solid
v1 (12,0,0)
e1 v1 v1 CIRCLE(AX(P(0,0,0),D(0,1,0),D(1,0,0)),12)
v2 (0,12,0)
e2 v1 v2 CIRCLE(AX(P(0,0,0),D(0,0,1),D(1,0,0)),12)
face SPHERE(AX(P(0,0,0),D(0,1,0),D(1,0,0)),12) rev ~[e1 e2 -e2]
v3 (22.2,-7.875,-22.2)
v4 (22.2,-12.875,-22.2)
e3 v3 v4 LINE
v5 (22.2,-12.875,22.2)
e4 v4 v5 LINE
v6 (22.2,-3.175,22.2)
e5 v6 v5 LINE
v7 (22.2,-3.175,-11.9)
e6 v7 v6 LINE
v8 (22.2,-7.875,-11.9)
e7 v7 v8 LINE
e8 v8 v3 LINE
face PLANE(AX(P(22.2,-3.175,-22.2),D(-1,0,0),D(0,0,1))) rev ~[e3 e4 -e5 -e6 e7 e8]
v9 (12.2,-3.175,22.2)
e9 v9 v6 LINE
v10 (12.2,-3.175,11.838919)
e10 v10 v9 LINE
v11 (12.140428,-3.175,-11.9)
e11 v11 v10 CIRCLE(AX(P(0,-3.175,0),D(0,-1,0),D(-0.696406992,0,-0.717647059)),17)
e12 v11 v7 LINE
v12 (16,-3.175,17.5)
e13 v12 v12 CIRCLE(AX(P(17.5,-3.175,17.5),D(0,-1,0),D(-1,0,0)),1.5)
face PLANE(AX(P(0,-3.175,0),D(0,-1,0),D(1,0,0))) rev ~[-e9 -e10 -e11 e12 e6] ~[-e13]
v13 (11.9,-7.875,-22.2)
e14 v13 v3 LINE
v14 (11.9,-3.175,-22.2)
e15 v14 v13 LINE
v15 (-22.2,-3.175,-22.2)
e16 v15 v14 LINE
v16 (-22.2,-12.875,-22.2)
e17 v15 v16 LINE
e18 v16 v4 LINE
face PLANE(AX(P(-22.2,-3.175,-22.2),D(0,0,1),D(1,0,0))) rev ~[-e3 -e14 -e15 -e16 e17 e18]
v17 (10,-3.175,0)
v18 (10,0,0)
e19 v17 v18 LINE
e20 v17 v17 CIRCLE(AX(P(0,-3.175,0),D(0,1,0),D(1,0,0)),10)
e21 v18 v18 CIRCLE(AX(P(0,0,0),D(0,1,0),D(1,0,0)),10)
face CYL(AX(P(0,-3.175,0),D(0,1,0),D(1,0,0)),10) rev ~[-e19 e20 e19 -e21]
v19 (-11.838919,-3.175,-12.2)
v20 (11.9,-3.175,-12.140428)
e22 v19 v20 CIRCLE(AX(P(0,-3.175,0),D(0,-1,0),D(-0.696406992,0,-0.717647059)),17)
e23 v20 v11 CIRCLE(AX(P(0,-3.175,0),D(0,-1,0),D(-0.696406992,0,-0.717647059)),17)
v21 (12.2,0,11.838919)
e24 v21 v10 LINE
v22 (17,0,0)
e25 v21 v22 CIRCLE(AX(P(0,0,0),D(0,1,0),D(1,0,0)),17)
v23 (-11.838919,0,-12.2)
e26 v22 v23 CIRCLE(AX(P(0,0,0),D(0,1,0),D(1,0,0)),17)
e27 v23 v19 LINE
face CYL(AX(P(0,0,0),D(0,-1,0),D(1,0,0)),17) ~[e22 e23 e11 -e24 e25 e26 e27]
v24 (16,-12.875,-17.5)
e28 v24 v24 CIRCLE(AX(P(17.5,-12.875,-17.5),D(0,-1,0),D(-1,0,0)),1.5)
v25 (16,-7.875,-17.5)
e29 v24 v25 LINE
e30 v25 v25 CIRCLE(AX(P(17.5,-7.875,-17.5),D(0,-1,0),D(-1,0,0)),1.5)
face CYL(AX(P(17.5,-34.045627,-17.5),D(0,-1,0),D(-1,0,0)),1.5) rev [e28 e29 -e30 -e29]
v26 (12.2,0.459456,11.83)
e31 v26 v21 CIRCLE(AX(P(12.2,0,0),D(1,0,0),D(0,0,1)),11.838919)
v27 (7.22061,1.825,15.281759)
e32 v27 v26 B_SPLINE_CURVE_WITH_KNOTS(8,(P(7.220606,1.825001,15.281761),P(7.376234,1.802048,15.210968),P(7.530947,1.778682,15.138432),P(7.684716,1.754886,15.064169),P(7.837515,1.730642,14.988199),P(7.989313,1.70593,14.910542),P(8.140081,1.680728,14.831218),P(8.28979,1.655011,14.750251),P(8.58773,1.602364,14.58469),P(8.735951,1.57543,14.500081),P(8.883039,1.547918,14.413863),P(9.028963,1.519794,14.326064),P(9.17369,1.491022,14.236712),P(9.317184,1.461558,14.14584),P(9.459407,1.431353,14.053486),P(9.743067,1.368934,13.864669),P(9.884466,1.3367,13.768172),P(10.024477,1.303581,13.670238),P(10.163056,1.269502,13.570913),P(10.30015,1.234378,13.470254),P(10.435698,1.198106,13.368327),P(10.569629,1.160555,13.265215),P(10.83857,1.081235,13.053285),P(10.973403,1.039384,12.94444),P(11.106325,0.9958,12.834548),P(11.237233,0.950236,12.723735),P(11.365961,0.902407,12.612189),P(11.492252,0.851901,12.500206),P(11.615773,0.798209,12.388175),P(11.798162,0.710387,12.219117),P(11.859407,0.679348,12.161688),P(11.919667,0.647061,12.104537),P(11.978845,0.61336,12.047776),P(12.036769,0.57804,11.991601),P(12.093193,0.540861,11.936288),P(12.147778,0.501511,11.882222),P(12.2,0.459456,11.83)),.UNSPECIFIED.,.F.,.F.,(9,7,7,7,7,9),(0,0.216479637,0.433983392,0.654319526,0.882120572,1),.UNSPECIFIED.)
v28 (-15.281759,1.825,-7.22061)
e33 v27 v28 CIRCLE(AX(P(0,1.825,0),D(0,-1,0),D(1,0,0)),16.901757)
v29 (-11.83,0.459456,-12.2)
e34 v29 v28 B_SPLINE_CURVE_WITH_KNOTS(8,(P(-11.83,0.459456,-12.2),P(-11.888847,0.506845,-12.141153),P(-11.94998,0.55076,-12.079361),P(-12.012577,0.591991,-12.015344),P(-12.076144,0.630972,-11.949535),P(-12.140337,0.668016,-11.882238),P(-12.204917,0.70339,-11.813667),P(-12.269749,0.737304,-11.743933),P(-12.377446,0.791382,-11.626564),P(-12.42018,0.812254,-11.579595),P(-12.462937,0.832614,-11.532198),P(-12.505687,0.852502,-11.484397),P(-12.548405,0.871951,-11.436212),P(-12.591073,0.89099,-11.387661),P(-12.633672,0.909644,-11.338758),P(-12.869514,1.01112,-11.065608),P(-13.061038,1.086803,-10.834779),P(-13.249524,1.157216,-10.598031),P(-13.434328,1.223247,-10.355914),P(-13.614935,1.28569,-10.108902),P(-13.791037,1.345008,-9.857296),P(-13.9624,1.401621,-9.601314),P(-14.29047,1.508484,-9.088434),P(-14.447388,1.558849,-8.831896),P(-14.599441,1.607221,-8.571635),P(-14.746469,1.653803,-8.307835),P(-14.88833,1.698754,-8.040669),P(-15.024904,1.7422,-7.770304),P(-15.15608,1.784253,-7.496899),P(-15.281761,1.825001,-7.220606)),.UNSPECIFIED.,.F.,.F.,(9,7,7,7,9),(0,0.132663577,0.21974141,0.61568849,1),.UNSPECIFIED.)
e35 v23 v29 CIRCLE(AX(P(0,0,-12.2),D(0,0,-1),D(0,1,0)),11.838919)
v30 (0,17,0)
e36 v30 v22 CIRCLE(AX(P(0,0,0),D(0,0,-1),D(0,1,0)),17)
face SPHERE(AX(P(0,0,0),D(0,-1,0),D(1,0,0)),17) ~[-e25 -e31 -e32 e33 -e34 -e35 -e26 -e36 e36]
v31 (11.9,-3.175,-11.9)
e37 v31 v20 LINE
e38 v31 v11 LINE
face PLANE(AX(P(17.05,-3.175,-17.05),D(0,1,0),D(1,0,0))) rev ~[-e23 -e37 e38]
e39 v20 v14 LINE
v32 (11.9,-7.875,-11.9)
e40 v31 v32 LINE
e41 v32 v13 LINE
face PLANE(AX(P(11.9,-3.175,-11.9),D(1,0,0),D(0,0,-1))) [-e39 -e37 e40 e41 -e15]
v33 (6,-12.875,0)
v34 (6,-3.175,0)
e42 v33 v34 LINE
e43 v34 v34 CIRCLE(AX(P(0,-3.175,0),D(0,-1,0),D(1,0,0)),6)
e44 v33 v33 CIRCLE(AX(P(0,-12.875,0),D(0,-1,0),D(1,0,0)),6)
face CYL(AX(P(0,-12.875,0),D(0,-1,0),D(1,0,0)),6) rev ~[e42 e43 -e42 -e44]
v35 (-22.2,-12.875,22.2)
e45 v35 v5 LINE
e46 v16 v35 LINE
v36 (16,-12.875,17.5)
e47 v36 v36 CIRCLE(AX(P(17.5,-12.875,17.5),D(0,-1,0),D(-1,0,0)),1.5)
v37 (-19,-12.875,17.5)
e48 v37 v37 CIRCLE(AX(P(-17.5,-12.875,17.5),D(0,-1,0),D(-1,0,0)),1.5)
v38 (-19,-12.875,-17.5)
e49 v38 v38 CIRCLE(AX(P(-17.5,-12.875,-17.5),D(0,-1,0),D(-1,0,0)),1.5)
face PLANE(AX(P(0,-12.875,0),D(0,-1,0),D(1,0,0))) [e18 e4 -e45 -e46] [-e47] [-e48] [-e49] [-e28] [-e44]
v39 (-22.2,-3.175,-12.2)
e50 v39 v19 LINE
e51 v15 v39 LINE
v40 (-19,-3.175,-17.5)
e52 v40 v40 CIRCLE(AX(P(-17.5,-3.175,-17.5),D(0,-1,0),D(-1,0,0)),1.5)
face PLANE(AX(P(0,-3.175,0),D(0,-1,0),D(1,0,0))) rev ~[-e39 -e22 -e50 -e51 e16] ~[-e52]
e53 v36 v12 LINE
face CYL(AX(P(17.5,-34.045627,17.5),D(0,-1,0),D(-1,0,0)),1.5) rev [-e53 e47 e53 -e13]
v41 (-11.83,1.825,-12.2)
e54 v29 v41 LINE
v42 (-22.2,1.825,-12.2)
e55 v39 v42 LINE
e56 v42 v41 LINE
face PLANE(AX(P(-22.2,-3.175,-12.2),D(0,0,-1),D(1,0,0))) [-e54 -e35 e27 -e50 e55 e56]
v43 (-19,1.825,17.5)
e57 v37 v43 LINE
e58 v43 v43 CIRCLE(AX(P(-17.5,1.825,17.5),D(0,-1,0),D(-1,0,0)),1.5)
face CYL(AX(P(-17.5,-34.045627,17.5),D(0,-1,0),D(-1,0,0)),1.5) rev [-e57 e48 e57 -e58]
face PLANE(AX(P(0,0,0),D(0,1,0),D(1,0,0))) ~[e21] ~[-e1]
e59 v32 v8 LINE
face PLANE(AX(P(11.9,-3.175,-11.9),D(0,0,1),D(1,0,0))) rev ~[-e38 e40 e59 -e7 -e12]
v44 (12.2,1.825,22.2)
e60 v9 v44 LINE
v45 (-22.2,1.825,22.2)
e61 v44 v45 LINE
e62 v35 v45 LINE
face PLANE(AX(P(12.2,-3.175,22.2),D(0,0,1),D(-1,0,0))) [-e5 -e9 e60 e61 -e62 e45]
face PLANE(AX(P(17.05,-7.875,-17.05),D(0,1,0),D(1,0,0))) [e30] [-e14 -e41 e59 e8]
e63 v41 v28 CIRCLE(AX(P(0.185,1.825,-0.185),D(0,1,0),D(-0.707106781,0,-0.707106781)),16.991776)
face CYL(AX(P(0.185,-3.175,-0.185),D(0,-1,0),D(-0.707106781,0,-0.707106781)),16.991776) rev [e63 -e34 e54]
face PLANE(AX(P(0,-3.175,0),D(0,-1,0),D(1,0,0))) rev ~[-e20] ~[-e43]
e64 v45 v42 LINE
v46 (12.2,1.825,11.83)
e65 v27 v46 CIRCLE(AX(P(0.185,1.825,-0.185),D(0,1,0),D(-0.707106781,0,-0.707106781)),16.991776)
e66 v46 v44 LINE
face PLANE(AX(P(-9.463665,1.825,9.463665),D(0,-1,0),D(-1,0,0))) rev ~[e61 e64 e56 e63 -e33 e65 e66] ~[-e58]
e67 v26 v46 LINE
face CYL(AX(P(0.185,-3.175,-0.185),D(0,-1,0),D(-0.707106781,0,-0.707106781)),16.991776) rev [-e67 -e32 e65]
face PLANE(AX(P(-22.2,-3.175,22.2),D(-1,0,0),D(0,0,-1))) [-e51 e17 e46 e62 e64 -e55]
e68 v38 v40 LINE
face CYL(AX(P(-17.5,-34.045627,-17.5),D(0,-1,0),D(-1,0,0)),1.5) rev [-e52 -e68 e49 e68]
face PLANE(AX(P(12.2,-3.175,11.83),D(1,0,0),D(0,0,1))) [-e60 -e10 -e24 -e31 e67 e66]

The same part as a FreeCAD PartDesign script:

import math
import FreeCAD as App
import Part
import Sketcher
from FreeCAD import Vector
Q = App.Units.Quantity

doc = App.newDocument("Part")
body = doc.addObject("PartDesign::Body", "Body")

sketch1 = doc.addObject("Sketcher::SketchObject", "Sketch")
body.addObject(sketch1)
sketch1.AttachmentSupport = (doc.XY_Plane, [""])
sketch1.MapMode = "FlatFace"
sketch1.addGeometry(Part.LineSegment(Vector(-10, 0, 0), Vector(-12, 0, 0)), False)
sketch1.addGeometry(Part.ArcOfCircle(Part.Circle(Vector(0, 0, 0), Vector(0, 0, 1), 12), math.radians(90), math.radians(180)), False)
sketch1.addGeometry(Part.LineSegment(Vector(0, 12, 0), Vector(0, 17, 0)), False)
sketch1.addGeometry(Part.ArcOfCircle(Part.Circle(Vector(0, 0, 0), Vector(0, 0, 1), 17), math.radians(90), math.radians(180)), False)
sketch1.addGeometry(Part.LineSegment(Vector(-17, 0, 0), Vector(-17, -3.175, 0)), False)
sketch1.addGeometry(Part.LineSegment(Vector(-17, -3.175, 0), Vector(-10, -3.175, 0)), False)
sketch1.addGeometry(Part.LineSegment(Vector(-10, -3.175, 0), Vector(-10, 0, 0)), False)
sketch1.addConstraint(Sketcher.Constraint("Coincident", 0, 2, 1, 2))
sketch1.addConstraint(Sketcher.Constraint("Coincident", 1, 1, 2, 1))
sketch1.addConstraint(Sketcher.Constraint("Coincident", 2, 2, 3, 1))
sketch1.addConstraint(Sketcher.Constraint("Tangent", 3, 2, 4, 1))
sketch1.addConstraint(Sketcher.Constraint("Coincident", 4, 2, 5, 1))
sketch1.addConstraint(Sketcher.Constraint("Coincident", 5, 2, 6, 1))
sketch1.addConstraint(Sketcher.Constraint("Coincident", 6, 2, 0, 1))
sketch1.addConstraint(Sketcher.Constraint("Horizontal", 0))
sketch1.addConstraint(Sketcher.Constraint("Vertical", 2))
sketch1.addConstraint(Sketcher.Constraint("Vertical", 4))
sketch1.addConstraint(Sketcher.Constraint("Horizontal", 5))
sketch1.addConstraint(Sketcher.Constraint("Vertical", 6))
sketch1.addConstraint(Sketcher.Constraint("Coincident", 1, 3, -1, 1))
sketch1.addConstraint(Sketcher.Constraint("Coincident", 3, 3, -1, 1))
sketch1.addConstraint(Sketcher.Constraint("PointOnObject", 0, 2, -1))
sketch1.addConstraint(Sketcher.Constraint("PointOnObject", 1, 1, -2))
sketch1.addConstraint(Sketcher.Constraint("Radius", 1, Q("12 mm")))
sketch1.addConstraint(Sketcher.Constraint("Radius", 3, Q("17 mm")))
sketch1.addConstraint(Sketcher.Constraint("DistanceX", 0, 2, 0, 1, Q("2 mm")))
sketch1.addConstraint(Sketcher.Constraint("DistanceY", 4, 2, 4, 1, Q("3.175 mm")))
revolution = doc.addObject("PartDesign::Revolution", "Revolution")
body.addObject(revolution)
revolution.Profile = sketch1
revolution.ReferenceAxis = (sketch1, ["V_Axis"])
revolution.Angle = 360

sketch2 = doc.addObject("Sketcher::SketchObject", "Sketch001")
body.addObject(sketch2)
sketch2.AttachmentSupport = (doc.XZ_Plane, [""])
sketch2.MapMode = "FlatFace"
sketch2.AttachmentOffset = App.Placement(Vector(0, 0, 3.175), App.Rotation())
sketch2.addGeometry(Part.LineSegment(Vector(-22.2, 22.2, 0), Vector(-22.2, -22.2, 0)), False)
sketch2.addGeometry(Part.LineSegment(Vector(-22.2, -22.2, 0), Vector(22.2, -22.2, 0)), False)
sketch2.addGeometry(Part.LineSegment(Vector(22.2, -22.2, 0), Vector(22.2, 22.2, 0)), False)
sketch2.addGeometry(Part.LineSegment(Vector(22.2, 22.2, 0), Vector(-22.2, 22.2, 0)), False)
sketch2.addConstraint(Sketcher.Constraint("Coincident", 0, 2, 1, 1))
sketch2.addConstraint(Sketcher.Constraint("Coincident", 1, 2, 2, 1))
sketch2.addConstraint(Sketcher.Constraint("Coincident", 2, 2, 3, 1))
sketch2.addConstraint(Sketcher.Constraint("Coincident", 3, 2, 0, 1))
sketch2.addConstraint(Sketcher.Constraint("Vertical", 0))
sketch2.addConstraint(Sketcher.Constraint("Horizontal", 1))
sketch2.addConstraint(Sketcher.Constraint("Vertical", 2))
sketch2.addConstraint(Sketcher.Constraint("Horizontal", 3))
sketch2.addConstraint(Sketcher.Constraint("Symmetric", 0, 2, 2, 2, -1, 1))
sketch2.addConstraint(Sketcher.Constraint("Equal", 3, 0))
sketch2.addConstraint(Sketcher.Constraint("DistanceX", 1, 1, 1, 2, Q("44.4 mm")))
pad1 = doc.addObject("PartDesign::Pad", "Pad")
body.addObject(pad1)
pad1.Profile = sketch2
pad1.Length = 9.7

sketch3 = doc.addObject("Sketcher::SketchObject", "Sketch002")
body.addObject(sketch3)
sketch3.AttachmentSupport = (doc.XZ_Plane, [""])
sketch3.MapMode = "FlatFace"
sketch3.AttachmentOffset = App.Placement(Vector(0, 0, 12.875), App.Rotation())
sketch3.addGeometry(Part.Circle(Vector(0, 0, 0), Vector(0, 0, 1), 6), False)
sketch3.addConstraint(Sketcher.Constraint("Coincident", 0, 3, -1, 1))
sketch3.addConstraint(Sketcher.Constraint("Diameter", 0, Q("12 mm")))
pocket1 = doc.addObject("PartDesign::Pocket", "Pocket")
body.addObject(pocket1)
pocket1.Profile = sketch3
pocket1.Length = 14.3

sketch4 = doc.addObject("Sketcher::SketchObject", "Sketch003")
body.addObject(sketch4)
sketch4.AttachmentSupport = (doc.XZ_Plane, [""])
sketch4.MapMode = "FlatFace"
sketch4.AttachmentOffset = App.Placement(Vector(0, 0, 3.175), App.Rotation())
sketch4.addGeometry(Part.LineSegment(Vector(-22.2, -12.2, 0), Vector(-22.2, 22.2, 0)), False)
sketch4.addGeometry(Part.LineSegment(Vector(-22.2, 22.2, 0), Vector(12.2, 22.2, 0)), False)
sketch4.addGeometry(Part.LineSegment(Vector(12.2, 22.2, 0), Vector(12.2, 11.83, 0)), False)
sketch4.addGeometry(Part.ArcOfCircle(Part.Circle(Vector(0.185, -0.185, 0), Vector(0, 0, 1), 16.991776), math.radians(45), math.radians(225)), False)
sketch4.addGeometry(Part.LineSegment(Vector(-11.83, -12.2, 0), Vector(-22.2, -12.2, 0)), False)
sketch4.addConstraint(Sketcher.Constraint("Coincident", 0, 2, 1, 1))
sketch4.addConstraint(Sketcher.Constraint("Coincident", 1, 2, 2, 1))
sketch4.addConstraint(Sketcher.Constraint("Coincident", 2, 2, 3, 1))
sketch4.addConstraint(Sketcher.Constraint("Coincident", 3, 2, 4, 1))
sketch4.addConstraint(Sketcher.Constraint("Coincident", 4, 2, 0, 1))
sketch4.addConstraint(Sketcher.Constraint("Vertical", 0))
sketch4.addConstraint(Sketcher.Constraint("Horizontal", 1))
sketch4.addConstraint(Sketcher.Constraint("Vertical", 2))
sketch4.addConstraint(Sketcher.Constraint("Horizontal", 4))
sketch4.addConstraint(Sketcher.Constraint("Equal", 1, 0))
sketch4.addConstraint(Sketcher.Constraint("Equal", 4, 2))
sketch4.addConstraint(Sketcher.Constraint("DistanceX", 1, 1, 1, 2, Q("34.4 mm")))
sketch4.addConstraint(Sketcher.Constraint("DistanceX", 4, 2, 4, 1, Q("10.37 mm")))
sketch4.addConstraint(Sketcher.Constraint("DistanceX", 0, 2, -1, 1, Q("22.2 mm")))
sketch4.addConstraint(Sketcher.Constraint("DistanceY", -1, 1, 0, 2, Q("22.2 mm")))
sketch4.addConstraint(Sketcher.Constraint("DistanceX", -1, 1, 3, 3, Q("0.185 mm")))
pad2 = doc.addObject("PartDesign::Pad", "Pad001")
body.addObject(pad2)
pad2.Profile = sketch4
pad2.Length = 5
pad2.Reversed = True

sketch5 = doc.addObject("Sketcher::SketchObject", "Sketch004")
body.addObject(sketch5)
sketch5.AttachmentSupport = (doc.XZ_Plane, [""])
sketch5.MapMode = "FlatFace"
sketch5.AttachmentOffset = App.Placement(Vector(0, 0, -1.825), App.Rotation())
sketch5.addGeometry(Part.Circle(Vector(-17.5, 17.5, 0), Vector(0, 0, 1), 1.5), False)
sketch5.addGeometry(Part.Circle(Vector(17.5, 17.5, 0), Vector(0, 0, 1), 1.5), False)
sketch5.addGeometry(Part.Circle(Vector(17.5, -17.5, 0), Vector(0, 0, 1), 1.5), False)
sketch5.addGeometry(Part.Circle(Vector(-17.5, -17.5, 0), Vector(0, 0, 1), 1.5), False)
sketch5.addConstraint(Sketcher.Constraint("Equal", 0, 1))
sketch5.addConstraint(Sketcher.Constraint("Equal", 1, 2))
sketch5.addConstraint(Sketcher.Constraint("Equal", 2, 3))
sketch5.addConstraint(Sketcher.Constraint("Symmetric", 0, 3, 2, 3, -1, 1))
sketch5.addConstraint(Sketcher.Constraint("Symmetric", 1, 3, 3, 3, -1, 1))
sketch5.addConstraint(Sketcher.Constraint("Symmetric", 0, 3, 1, 3, -2))
sketch5.addConstraint(Sketcher.Constraint("Diameter", 0, Q("3 mm")))
sketch5.addConstraint(Sketcher.Constraint("DistanceX", 0, 3, 1, 3, Q("35 mm")))
sketch5.addConstraint(Sketcher.Constraint("DistanceY", 2, 3, 1, 3, Q("35 mm")))
pocket2 = doc.addObject("PartDesign::Pocket", "Pocket001")
body.addObject(pocket2)
pocket2.Profile = sketch5
pocket2.Type = "ThroughAll"
pocket2.Midplane = True

sketch6 = doc.addObject("Sketcher::SketchObject", "Sketch005")
body.addObject(sketch6)
sketch6.AttachmentSupport = (doc.XZ_Plane, [""])
sketch6.MapMode = "FlatFace"
sketch6.AttachmentOffset = App.Placement(Vector(0, 0, 3.175), App.Rotation())
sketch6.addGeometry(Part.LineSegment(Vector(11.9, -22.2, 0), Vector(11.9, -11.9, 0)), False)
sketch6.addGeometry(Part.LineSegment(Vector(11.9, -11.9, 0), Vector(22.2, -11.9, 0)), False)
sketch6.addGeometry(Part.LineSegment(Vector(22.2, -11.9, 0), Vector(22.2, -22.2, 0)), False)
sketch6.addGeometry(Part.LineSegment(Vector(22.2, -22.2, 0), Vector(11.9, -22.2, 0)), False)
sketch6.addConstraint(Sketcher.Constraint("Coincident", 0, 2, 1, 1))
sketch6.addConstraint(Sketcher.Constraint("Coincident", 1, 2, 2, 1))
sketch6.addConstraint(Sketcher.Constraint("Coincident", 2, 2, 3, 1))
sketch6.addConstraint(Sketcher.Constraint("Coincident", 3, 2, 0, 1))
sketch6.addConstraint(Sketcher.Constraint("Vertical", 0))
sketch6.addConstraint(Sketcher.Constraint("Horizontal", 1))
sketch6.addConstraint(Sketcher.Constraint("Vertical", 2))
sketch6.addConstraint(Sketcher.Constraint("Horizontal", 3))
sketch6.addConstraint(Sketcher.Constraint("Equal", 3, 0))
sketch6.addConstraint(Sketcher.Constraint("DistanceX", 1, 1, 1, 2, Q("10.3 mm")))
sketch6.addConstraint(Sketcher.Constraint("DistanceX", -1, 1, 0, 2, Q("11.9 mm")))
sketch6.addConstraint(Sketcher.Constraint("DistanceY", 0, 2, -1, 1, Q("11.9 mm")))
pocket3 = doc.addObject("PartDesign::Pocket", "Pocket002")
body.addObject(pocket3)
pocket3.Profile = sketch6
pocket3.Length = 4.7
pocket3.Reversed = True

doc.recompute()
